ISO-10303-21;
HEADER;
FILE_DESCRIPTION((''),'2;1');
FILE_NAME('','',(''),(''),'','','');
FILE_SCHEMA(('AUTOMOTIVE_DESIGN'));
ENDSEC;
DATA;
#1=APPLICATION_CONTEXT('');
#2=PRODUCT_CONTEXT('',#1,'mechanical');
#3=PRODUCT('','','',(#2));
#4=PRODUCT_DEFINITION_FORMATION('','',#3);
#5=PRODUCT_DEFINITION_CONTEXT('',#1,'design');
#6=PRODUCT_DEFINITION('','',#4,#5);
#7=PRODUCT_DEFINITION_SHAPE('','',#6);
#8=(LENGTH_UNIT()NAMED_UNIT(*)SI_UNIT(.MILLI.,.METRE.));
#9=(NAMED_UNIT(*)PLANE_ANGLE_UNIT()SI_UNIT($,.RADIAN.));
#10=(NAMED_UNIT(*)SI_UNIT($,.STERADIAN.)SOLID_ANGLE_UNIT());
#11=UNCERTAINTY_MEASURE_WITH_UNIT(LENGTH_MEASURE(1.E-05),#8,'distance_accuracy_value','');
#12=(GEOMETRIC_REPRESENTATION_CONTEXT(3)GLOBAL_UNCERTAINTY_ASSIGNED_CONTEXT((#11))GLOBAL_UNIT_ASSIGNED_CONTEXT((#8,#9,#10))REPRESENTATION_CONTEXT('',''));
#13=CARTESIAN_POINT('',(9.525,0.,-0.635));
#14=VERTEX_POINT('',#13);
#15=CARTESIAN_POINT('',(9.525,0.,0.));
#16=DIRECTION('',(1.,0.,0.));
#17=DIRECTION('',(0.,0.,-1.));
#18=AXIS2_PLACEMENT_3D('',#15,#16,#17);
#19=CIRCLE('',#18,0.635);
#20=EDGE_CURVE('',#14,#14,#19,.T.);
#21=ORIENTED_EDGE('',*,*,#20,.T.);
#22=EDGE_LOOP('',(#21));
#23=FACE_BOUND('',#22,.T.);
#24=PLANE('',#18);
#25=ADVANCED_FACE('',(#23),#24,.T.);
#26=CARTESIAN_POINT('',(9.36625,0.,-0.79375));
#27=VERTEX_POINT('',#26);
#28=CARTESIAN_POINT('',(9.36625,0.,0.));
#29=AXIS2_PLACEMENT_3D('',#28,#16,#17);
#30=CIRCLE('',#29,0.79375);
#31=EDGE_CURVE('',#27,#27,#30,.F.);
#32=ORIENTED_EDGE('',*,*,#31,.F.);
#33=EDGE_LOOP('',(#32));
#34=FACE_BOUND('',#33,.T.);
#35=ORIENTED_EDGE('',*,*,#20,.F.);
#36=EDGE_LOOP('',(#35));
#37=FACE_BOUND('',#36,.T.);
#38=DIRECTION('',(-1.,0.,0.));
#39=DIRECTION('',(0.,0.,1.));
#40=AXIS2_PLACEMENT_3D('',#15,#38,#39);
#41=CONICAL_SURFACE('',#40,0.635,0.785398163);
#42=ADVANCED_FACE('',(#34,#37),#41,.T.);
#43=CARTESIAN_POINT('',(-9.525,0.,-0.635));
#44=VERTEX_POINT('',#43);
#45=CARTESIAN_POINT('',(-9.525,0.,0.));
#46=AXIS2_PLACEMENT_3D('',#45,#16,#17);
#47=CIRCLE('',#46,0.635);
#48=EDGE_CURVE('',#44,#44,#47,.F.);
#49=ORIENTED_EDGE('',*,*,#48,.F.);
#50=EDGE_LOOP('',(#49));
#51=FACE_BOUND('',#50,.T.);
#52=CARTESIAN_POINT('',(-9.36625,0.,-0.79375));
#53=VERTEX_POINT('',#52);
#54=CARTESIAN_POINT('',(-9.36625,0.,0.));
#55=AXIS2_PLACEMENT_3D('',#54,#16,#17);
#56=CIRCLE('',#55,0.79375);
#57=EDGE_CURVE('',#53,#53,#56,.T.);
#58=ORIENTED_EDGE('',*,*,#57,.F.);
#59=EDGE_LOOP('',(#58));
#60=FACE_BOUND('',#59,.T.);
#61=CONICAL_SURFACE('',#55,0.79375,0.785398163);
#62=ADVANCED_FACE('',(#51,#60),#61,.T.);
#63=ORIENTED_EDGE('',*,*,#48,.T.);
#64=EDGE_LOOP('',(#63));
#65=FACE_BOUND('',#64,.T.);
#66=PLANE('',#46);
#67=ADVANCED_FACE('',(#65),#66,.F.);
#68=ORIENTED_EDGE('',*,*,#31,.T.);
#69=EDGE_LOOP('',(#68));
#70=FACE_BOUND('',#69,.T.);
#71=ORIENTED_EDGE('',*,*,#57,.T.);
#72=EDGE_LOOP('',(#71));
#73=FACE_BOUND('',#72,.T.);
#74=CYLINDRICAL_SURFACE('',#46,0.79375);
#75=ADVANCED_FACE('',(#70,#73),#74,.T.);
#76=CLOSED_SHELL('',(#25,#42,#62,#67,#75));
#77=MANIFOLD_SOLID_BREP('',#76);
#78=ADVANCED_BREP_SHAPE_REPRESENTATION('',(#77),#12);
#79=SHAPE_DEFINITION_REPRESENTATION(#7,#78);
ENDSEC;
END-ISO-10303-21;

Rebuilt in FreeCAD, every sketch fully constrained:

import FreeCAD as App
import Part
import Sketcher
from FreeCAD import Vector
Q = App.Units.Quantity


def edges_at(feature, points):
    """Names of the edges that pass closest to the given points."""
    edges = feature.Shape.Edges
    near = lambda p: min(range(len(edges)), key=lambda i: edges[i].distToShape(Part.Vertex(*p))[0])
    return sorted({f"Edge{near(p) + 1}" for p in points})

doc = App.newDocument("Part")
params = doc.addObject("Spreadsheet::Sheet", "Params")
for row, (alias, value) in enumerate([
    ("sketch1_diameter", "0.0625 in"),
    ("pad1_length", "0.375 in"),
    ("pad1_length2", "0.375 in"),
    ("chamfer_size", "0.15875 mm"),
], start=1):
    params.set(f"A{row}", alias)
    params.set(f"B{row}", "=" + value)
    params.setAlias(f"B{row}", alias)

body = doc.addObject("PartDesign::Body", "Body")

# Sketch on YZ plane
sketch1 = body.newObject("Sketcher::SketchObject", "Sketch")
sketch1.AttachmentSupport = (doc.getObject("YZ_Plane"), [""])
sketch1.MapMode = "FlatFace"
sketch1.addGeometry(Part.Circle(Vector(0, 0, 0), Vector(0, 0, 1), 0.79375), False)
sketch1.addConstraint(Sketcher.Constraint("Coincident", 0, 3, -1, 1))
sketch1.addConstraint(Sketcher.Constraint("Diameter", 0, Q("0.0625 in")))
sketch1.setExpression("Constraints[1]", "Params.sketch1_diameter")
pad1 = body.newObject("PartDesign::Pad", "Pad")
pad1.Profile = sketch1
pad1.Type = "TwoLengths"
pad1.setExpression("Length", "Params.pad1_length")
pad1.setExpression("Length2", "Params.pad1_length2")
doc.recompute()

chamfer = body.newObject("PartDesign::Chamfer", "Chamfer")
chamfer.Base = (pad1, edges_at(pad1, [(-9.525, 0, 0.794), (9.525, 0, 0.794)]))
chamfer.setExpression("Size", "Params.chamfer_size")

doc.recompute()
